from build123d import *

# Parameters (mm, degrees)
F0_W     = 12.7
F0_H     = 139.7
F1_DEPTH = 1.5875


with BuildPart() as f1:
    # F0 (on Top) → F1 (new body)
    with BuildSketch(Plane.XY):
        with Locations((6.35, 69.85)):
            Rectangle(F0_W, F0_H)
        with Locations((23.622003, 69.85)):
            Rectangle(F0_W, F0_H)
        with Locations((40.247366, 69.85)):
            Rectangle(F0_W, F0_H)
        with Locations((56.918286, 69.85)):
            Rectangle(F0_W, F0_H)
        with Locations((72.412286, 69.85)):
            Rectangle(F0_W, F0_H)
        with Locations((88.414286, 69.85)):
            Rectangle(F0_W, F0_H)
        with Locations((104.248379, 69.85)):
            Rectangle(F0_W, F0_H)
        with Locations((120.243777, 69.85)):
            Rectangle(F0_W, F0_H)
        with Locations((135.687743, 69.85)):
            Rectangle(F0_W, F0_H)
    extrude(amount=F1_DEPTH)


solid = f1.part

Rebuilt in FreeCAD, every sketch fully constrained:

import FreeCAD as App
import Part
import Sketcher
from FreeCAD import Vector
Q = App.Units.Quantity

doc = App.newDocument("Part")
body = doc.addObject("PartDesign::Body", "Body")
body.AllowCompound = True

# Sketch on XY plane
sketch1 = body.newObject("Sketcher::SketchObject", "Sketch")
sketch1.AttachmentSupport = (doc.getObject("XY_Plane"), [""])
sketch1.MapMode = "FlatFace"
sketch1.addGeometry([
    Part.LineSegment(Vector(0, 139.7, 0), Vector(0, 0, 0)),  # 0
    Part.LineSegment(Vector(0, 0, 0), Vector(12.7, 0, 0)),  # 1
    Part.LineSegment(Vector(12.7, 0, 0), Vector(12.7, 139.7, 0)),  # 2
    Part.LineSegment(Vector(12.7, 139.7, 0), Vector(0, 139.7, 0)),  # 3
    Part.LineSegment(Vector(17.272003, 139.7, 0), Vector(17.272003, 0, 0)),  # 4
    Part.LineSegment(Vector(17.272003, 0, 0), Vector(29.972003, 0, 0)),  # 5
    Part.LineSegment(Vector(29.972003, 0, 0), Vector(29.972003, 139.7, 0)),  # 6
    Part.LineSegment(Vector(29.972003, 139.7, 0), Vector(17.272003, 139.7, 0)),  # 7
    Part.LineSegment(Vector(33.897366, 139.7, 0), Vector(33.897366, 0, 0)),  # 8
    Part.LineSegment(Vector(33.897366, 0, 0), Vector(46.597366, 0, 0)),  # 9
    Part.LineSegment(Vector(46.597366, 0, 0), Vector(46.597366, 139.7, 0)),  # 10
    Part.LineSegment(Vector(46.597366, 139.7, 0), Vector(33.897366, 139.7, 0)),  # 11
    Part.LineSegment(Vector(50.568286, 139.7, 0), Vector(50.568286, 0, 0)),  # 12
    Part.LineSegment(Vector(50.568286, 0, 0), Vector(63.268286, 0, 0)),  # 13
    Part.LineSegment(Vector(63.268286, 0, 0), Vector(63.268286, 139.7, 0)),  # 14
    Part.LineSegment(Vector(63.268286, 139.7, 0), Vector(50.568286, 139.7, 0)),  # 15
    Part.LineSegment(Vector(66.062286, 139.7, 0), Vector(66.062286, 0, 0)),  # 16
    Part.LineSegment(Vector(66.062286, 0, 0), Vector(78.762286, 0, 0)),  # 17
    Part.LineSegment(Vector(78.762286, 0, 0), Vector(78.762286, 139.7, 0)),  # 18
    Part.LineSegment(Vector(78.762286, 139.7, 0), Vector(66.062286, 139.7, 0)),  # 19
    Part.LineSegment(Vector(82.064286, 139.7, 0), Vector(82.064286, 0, 0)),  # 20
    Part.LineSegment(Vector(82.064286, 0, 0), Vector(94.764286, 0, 0)),  # 21
    Part.LineSegment(Vector(94.764286, 0, 0), Vector(94.764286, 139.7, 0)),  # 22
    Part.LineSegment(Vector(94.764286, 139.7, 0), Vector(82.064286, 139.7, 0)),  # 23
    Part.LineSegment(Vector(97.898379, 139.7, 0), Vector(97.898379, 0, 0)),  # 24
    Part.LineSegment(Vector(97.898379, 0, 0), Vector(110.598379, 0, 0)),  # 25
    Part.LineSegment(Vector(110.598379, 0, 0), Vector(110.598379, 139.7, 0)),  # 26
    Part.LineSegment(Vector(110.598379, 139.7, 0), Vector(97.898379, 139.7, 0)),  # 27
    Part.LineSegment(Vector(113.893777, 139.7, 0), Vector(113.893777, 0, 0)),  # 28
    Part.LineSegment(Vector(113.893777, 0, 0), Vector(126.593777, 0, 0)),  # 29
    Part.LineSegment(Vector(126.593777, 0, 0), Vector(126.593777, 139.7, 0)),  # 30
    Part.LineSegment(Vector(126.593777, 139.7, 0), Vector(113.893777, 139.7, 0)),  # 31
    Part.LineSegment(Vector(129.337743, 139.7, 0), Vector(129.337743, 0, 0)),  # 32
    Part.LineSegment(Vector(129.337743, 0, 0), Vector(142.037743, 0, 0)),  # 33
    Part.LineSegment(Vector(142.037743, 0, 0), Vector(142.037743, 139.7, 0)),  # 34
    Part.LineSegment(Vector(142.037743, 139.7, 0), Vector(129.337743, 139.7, 0)),  # 35
], False)
sketch1.addConstraint([
    Sketcher.Constraint("Coincident", 0, 2, 1, 1),
    Sketcher.Constraint("Coincident", 1, 2, 2, 1),
    Sketcher.Constraint("Coincident", 2, 2, 3, 1),
    Sketcher.Constraint("Coincident", 3, 2, 0, 1),
    Sketcher.Constraint("Coincident", 4, 2, 5, 1),
    Sketcher.Constraint("Coincident", 5, 2, 6, 1),
    Sketcher.Constraint("Coincident", 6, 2, 7, 1),
    Sketcher.Constraint("Coincident", 7, 2, 4, 1),
    Sketcher.Constraint("Coincident", 8, 2, 9, 1),
    Sketcher.Constraint("Coincident", 9, 2, 10, 1),
    Sketcher.Constraint("Coincident", 10, 2, 11, 1),
    Sketcher.Constraint("Coincident", 11, 2, 8, 1),
    Sketcher.Constraint("Coincident", 12, 2, 13, 1),
    Sketcher.Constraint("Coincident", 13, 2, 14, 1),
    Sketcher.Constraint("Coincident", 14, 2, 15, 1),
    Sketcher.Constraint("Coincident", 15, 2, 12, 1),
    Sketcher.Constraint("Coincident", 16, 2, 17, 1),
    Sketcher.Constraint("Coincident", 17, 2, 18, 1),
    Sketcher.Constraint("Coincident", 18, 2, 19, 1),
    Sketcher.Constraint("Coincident", 19, 2, 16, 1),
    Sketcher.Constraint("Coincident", 20, 2, 21, 1),
    Sketcher.Constraint("Coincident", 21, 2, 22, 1),
    Sketcher.Constraint("Coincident", 22, 2, 23, 1),
    Sketcher.Constraint("Coincident", 23, 2, 20, 1),
    Sketcher.Constraint("Coincident", 24, 2, 25, 1),
    Sketcher.Constraint("Coincident", 25, 2, 26, 1),
    Sketcher.Constraint("Coincident", 26, 2, 27, 1),
    Sketcher.Constraint("Coincident", 27, 2, 24, 1),
    Sketcher.Constraint("Coincident", 28, 2, 29, 1),
    Sketcher.Constraint("Coincident", 29, 2, 30, 1),
    Sketcher.Constraint("Coincident", 30, 2, 31, 1),
    Sketcher.Constraint("Coincident", 31, 2, 28, 1),
    Sketcher.Constraint("Coincident", 32, 2, 33, 1),
    Sketcher.Constraint("Coincident", 33, 2, 34, 1),
    Sketcher.Constraint("Coincident", 34, 2, 35, 1),
    Sketcher.Constraint("Coincident", 35, 2, 32, 1),
    Sketcher.Constraint("Vertical", 0),
    Sketcher.Constraint("Horizontal", 1),
    Sketcher.Constraint("Vertical", 2),
    Sketcher.Constraint("Horizontal", 3),
    Sketcher.Constraint("Vertical", 4),
    Sketcher.Constraint("Horizontal", 5),
    Sketcher.Constraint("Vertical", 6),
    Sketcher.Constraint("Horizontal", 7),
    Sketcher.Constraint("Vertical", 8),
    Sketcher.Constraint("Horizontal", 9),
    Sketcher.Constraint("Vertical", 10),
    Sketcher.Constraint("Horizontal", 11),
    Sketcher.Constraint("Vertical", 12),
    Sketcher.Constraint("Horizontal", 13),
    Sketcher.Constraint("Vertical", 14),
    Sketcher.Constraint("Horizontal", 15),
    Sketcher.Constraint("Vertical", 16),
    Sketcher.Constraint("Horizontal", 17),
    Sketcher.Constraint("Vertical", 18),
    Sketcher.Constraint("Horizontal", 19),
    Sketcher.Constraint("Vertical", 20),
    Sketcher.Constraint("Horizontal", 21),
    Sketcher.Constraint("Vertical", 22),
    Sketcher.Constraint("Horizontal", 23),
    Sketcher.Constraint("Vertical", 24),
    Sketcher.Constraint("Horizontal", 25),
    Sketcher.Constraint("Vertical", 26),
    Sketcher.Constraint("Horizontal", 27),
    Sketcher.Constraint("Vertical", 28),
    Sketcher.Constraint("Horizontal", 29),
    Sketcher.Constraint("Vertical", 30),
    Sketcher.Constraint("Horizontal", 31),
    Sketcher.Constraint("Vertical", 32),
    Sketcher.Constraint("Horizontal", 33),
    Sketcher.Constraint("Vertical", 34),
    Sketcher.Constraint("Horizontal", 35),
    Sketcher.Constraint("Coincident", 0, 2, -1, 1),
    Sketcher.Constraint("PointOnObject", 4, 2, -1),
    Sketcher.Constraint("PointOnObject", 8, 2, -1),
    Sketcher.Constraint("PointOnObject", 12, 2, -1),
    Sketcher.Constraint("PointOnObject", 16, 2, -1),
    Sketcher.Constraint("PointOnObject", 20, 2, -1),
    Sketcher.Constraint("PointOnObject", 24, 2, -1),
    Sketcher.Constraint("PointOnObject", 28, 2, -1),
    Sketcher.Constraint("PointOnObject", 32, 2, -1),
    Sketcher.Constraint("Horizontal", 3, 2, 6, 2),
    Sketcher.Constraint("Horizontal", 7, 2, 10, 2),
    Sketcher.Constraint("Horizontal", 11, 2, 14, 2),
    Sketcher.Constraint("Horizontal", 15, 2, 18, 2),
    Sketcher.Constraint("Horizontal", 19, 2, 22, 2),
    Sketcher.Constraint("Horizontal", 23, 2, 26, 2),
    Sketcher.Constraint("Horizontal", 27, 2, 30, 2),
    Sketcher.Constraint("Horizontal", 31, 2, 34, 2),
    Sketcher.Constraint("Equal", 3, 5),
    Sketcher.Constraint("Equal", 7, 9),
    Sketcher.Constraint("Equal", 11, 13),
    Sketcher.Constraint("Equal", 15, 17),
    Sketcher.Constraint("Equal", 19, 21),
    Sketcher.Constraint("Equal", 23, 25),
    Sketcher.Constraint("Equal", 27, 29),
    Sketcher.Constraint("Equal", 31, 33),
    Sketcher.Constraint("DistanceX", 1, 1, 1, 2, Q("0.5 in")),
    Sketcher.Constraint("DistanceY", 0, 2, 0, 1, Q("5.5 in")),
    Sketcher.Constraint("DistanceX", -1, 1, 4, 2, Q("0.6800001 in")),
    Sketcher.Constraint("DistanceX", 13, 2, 16, 2, Q("0.11 in")),
    Sketcher.Constraint("DistanceX", 17, 2, 20, 2, Q("0.13 in")),
    Sketcher.Constraint("DistanceX", 25, 2, 28, 2, Q("3.295398 mm")),
    Sketcher.Constraint("DistanceX", -1, 1, 24, 2, Q("97.898379 mm")),
    Sketcher.Constraint("DistanceX", 9, 2, 12, 2, Q("3.97092 mm")),
    Sketcher.Constraint("DistanceX", 21, 2, 28, 2, Q("19.129491 mm")),
    Sketcher.Constraint("DistanceX", -1, 1, 32, 2, Q("129.337743 mm")),
])
pad1 = body.newObject("PartDesign::Pad", "Pad")
pad1.Profile = sketch1
pad1.Length = Q("0.0625 in")

doc.recompute()
